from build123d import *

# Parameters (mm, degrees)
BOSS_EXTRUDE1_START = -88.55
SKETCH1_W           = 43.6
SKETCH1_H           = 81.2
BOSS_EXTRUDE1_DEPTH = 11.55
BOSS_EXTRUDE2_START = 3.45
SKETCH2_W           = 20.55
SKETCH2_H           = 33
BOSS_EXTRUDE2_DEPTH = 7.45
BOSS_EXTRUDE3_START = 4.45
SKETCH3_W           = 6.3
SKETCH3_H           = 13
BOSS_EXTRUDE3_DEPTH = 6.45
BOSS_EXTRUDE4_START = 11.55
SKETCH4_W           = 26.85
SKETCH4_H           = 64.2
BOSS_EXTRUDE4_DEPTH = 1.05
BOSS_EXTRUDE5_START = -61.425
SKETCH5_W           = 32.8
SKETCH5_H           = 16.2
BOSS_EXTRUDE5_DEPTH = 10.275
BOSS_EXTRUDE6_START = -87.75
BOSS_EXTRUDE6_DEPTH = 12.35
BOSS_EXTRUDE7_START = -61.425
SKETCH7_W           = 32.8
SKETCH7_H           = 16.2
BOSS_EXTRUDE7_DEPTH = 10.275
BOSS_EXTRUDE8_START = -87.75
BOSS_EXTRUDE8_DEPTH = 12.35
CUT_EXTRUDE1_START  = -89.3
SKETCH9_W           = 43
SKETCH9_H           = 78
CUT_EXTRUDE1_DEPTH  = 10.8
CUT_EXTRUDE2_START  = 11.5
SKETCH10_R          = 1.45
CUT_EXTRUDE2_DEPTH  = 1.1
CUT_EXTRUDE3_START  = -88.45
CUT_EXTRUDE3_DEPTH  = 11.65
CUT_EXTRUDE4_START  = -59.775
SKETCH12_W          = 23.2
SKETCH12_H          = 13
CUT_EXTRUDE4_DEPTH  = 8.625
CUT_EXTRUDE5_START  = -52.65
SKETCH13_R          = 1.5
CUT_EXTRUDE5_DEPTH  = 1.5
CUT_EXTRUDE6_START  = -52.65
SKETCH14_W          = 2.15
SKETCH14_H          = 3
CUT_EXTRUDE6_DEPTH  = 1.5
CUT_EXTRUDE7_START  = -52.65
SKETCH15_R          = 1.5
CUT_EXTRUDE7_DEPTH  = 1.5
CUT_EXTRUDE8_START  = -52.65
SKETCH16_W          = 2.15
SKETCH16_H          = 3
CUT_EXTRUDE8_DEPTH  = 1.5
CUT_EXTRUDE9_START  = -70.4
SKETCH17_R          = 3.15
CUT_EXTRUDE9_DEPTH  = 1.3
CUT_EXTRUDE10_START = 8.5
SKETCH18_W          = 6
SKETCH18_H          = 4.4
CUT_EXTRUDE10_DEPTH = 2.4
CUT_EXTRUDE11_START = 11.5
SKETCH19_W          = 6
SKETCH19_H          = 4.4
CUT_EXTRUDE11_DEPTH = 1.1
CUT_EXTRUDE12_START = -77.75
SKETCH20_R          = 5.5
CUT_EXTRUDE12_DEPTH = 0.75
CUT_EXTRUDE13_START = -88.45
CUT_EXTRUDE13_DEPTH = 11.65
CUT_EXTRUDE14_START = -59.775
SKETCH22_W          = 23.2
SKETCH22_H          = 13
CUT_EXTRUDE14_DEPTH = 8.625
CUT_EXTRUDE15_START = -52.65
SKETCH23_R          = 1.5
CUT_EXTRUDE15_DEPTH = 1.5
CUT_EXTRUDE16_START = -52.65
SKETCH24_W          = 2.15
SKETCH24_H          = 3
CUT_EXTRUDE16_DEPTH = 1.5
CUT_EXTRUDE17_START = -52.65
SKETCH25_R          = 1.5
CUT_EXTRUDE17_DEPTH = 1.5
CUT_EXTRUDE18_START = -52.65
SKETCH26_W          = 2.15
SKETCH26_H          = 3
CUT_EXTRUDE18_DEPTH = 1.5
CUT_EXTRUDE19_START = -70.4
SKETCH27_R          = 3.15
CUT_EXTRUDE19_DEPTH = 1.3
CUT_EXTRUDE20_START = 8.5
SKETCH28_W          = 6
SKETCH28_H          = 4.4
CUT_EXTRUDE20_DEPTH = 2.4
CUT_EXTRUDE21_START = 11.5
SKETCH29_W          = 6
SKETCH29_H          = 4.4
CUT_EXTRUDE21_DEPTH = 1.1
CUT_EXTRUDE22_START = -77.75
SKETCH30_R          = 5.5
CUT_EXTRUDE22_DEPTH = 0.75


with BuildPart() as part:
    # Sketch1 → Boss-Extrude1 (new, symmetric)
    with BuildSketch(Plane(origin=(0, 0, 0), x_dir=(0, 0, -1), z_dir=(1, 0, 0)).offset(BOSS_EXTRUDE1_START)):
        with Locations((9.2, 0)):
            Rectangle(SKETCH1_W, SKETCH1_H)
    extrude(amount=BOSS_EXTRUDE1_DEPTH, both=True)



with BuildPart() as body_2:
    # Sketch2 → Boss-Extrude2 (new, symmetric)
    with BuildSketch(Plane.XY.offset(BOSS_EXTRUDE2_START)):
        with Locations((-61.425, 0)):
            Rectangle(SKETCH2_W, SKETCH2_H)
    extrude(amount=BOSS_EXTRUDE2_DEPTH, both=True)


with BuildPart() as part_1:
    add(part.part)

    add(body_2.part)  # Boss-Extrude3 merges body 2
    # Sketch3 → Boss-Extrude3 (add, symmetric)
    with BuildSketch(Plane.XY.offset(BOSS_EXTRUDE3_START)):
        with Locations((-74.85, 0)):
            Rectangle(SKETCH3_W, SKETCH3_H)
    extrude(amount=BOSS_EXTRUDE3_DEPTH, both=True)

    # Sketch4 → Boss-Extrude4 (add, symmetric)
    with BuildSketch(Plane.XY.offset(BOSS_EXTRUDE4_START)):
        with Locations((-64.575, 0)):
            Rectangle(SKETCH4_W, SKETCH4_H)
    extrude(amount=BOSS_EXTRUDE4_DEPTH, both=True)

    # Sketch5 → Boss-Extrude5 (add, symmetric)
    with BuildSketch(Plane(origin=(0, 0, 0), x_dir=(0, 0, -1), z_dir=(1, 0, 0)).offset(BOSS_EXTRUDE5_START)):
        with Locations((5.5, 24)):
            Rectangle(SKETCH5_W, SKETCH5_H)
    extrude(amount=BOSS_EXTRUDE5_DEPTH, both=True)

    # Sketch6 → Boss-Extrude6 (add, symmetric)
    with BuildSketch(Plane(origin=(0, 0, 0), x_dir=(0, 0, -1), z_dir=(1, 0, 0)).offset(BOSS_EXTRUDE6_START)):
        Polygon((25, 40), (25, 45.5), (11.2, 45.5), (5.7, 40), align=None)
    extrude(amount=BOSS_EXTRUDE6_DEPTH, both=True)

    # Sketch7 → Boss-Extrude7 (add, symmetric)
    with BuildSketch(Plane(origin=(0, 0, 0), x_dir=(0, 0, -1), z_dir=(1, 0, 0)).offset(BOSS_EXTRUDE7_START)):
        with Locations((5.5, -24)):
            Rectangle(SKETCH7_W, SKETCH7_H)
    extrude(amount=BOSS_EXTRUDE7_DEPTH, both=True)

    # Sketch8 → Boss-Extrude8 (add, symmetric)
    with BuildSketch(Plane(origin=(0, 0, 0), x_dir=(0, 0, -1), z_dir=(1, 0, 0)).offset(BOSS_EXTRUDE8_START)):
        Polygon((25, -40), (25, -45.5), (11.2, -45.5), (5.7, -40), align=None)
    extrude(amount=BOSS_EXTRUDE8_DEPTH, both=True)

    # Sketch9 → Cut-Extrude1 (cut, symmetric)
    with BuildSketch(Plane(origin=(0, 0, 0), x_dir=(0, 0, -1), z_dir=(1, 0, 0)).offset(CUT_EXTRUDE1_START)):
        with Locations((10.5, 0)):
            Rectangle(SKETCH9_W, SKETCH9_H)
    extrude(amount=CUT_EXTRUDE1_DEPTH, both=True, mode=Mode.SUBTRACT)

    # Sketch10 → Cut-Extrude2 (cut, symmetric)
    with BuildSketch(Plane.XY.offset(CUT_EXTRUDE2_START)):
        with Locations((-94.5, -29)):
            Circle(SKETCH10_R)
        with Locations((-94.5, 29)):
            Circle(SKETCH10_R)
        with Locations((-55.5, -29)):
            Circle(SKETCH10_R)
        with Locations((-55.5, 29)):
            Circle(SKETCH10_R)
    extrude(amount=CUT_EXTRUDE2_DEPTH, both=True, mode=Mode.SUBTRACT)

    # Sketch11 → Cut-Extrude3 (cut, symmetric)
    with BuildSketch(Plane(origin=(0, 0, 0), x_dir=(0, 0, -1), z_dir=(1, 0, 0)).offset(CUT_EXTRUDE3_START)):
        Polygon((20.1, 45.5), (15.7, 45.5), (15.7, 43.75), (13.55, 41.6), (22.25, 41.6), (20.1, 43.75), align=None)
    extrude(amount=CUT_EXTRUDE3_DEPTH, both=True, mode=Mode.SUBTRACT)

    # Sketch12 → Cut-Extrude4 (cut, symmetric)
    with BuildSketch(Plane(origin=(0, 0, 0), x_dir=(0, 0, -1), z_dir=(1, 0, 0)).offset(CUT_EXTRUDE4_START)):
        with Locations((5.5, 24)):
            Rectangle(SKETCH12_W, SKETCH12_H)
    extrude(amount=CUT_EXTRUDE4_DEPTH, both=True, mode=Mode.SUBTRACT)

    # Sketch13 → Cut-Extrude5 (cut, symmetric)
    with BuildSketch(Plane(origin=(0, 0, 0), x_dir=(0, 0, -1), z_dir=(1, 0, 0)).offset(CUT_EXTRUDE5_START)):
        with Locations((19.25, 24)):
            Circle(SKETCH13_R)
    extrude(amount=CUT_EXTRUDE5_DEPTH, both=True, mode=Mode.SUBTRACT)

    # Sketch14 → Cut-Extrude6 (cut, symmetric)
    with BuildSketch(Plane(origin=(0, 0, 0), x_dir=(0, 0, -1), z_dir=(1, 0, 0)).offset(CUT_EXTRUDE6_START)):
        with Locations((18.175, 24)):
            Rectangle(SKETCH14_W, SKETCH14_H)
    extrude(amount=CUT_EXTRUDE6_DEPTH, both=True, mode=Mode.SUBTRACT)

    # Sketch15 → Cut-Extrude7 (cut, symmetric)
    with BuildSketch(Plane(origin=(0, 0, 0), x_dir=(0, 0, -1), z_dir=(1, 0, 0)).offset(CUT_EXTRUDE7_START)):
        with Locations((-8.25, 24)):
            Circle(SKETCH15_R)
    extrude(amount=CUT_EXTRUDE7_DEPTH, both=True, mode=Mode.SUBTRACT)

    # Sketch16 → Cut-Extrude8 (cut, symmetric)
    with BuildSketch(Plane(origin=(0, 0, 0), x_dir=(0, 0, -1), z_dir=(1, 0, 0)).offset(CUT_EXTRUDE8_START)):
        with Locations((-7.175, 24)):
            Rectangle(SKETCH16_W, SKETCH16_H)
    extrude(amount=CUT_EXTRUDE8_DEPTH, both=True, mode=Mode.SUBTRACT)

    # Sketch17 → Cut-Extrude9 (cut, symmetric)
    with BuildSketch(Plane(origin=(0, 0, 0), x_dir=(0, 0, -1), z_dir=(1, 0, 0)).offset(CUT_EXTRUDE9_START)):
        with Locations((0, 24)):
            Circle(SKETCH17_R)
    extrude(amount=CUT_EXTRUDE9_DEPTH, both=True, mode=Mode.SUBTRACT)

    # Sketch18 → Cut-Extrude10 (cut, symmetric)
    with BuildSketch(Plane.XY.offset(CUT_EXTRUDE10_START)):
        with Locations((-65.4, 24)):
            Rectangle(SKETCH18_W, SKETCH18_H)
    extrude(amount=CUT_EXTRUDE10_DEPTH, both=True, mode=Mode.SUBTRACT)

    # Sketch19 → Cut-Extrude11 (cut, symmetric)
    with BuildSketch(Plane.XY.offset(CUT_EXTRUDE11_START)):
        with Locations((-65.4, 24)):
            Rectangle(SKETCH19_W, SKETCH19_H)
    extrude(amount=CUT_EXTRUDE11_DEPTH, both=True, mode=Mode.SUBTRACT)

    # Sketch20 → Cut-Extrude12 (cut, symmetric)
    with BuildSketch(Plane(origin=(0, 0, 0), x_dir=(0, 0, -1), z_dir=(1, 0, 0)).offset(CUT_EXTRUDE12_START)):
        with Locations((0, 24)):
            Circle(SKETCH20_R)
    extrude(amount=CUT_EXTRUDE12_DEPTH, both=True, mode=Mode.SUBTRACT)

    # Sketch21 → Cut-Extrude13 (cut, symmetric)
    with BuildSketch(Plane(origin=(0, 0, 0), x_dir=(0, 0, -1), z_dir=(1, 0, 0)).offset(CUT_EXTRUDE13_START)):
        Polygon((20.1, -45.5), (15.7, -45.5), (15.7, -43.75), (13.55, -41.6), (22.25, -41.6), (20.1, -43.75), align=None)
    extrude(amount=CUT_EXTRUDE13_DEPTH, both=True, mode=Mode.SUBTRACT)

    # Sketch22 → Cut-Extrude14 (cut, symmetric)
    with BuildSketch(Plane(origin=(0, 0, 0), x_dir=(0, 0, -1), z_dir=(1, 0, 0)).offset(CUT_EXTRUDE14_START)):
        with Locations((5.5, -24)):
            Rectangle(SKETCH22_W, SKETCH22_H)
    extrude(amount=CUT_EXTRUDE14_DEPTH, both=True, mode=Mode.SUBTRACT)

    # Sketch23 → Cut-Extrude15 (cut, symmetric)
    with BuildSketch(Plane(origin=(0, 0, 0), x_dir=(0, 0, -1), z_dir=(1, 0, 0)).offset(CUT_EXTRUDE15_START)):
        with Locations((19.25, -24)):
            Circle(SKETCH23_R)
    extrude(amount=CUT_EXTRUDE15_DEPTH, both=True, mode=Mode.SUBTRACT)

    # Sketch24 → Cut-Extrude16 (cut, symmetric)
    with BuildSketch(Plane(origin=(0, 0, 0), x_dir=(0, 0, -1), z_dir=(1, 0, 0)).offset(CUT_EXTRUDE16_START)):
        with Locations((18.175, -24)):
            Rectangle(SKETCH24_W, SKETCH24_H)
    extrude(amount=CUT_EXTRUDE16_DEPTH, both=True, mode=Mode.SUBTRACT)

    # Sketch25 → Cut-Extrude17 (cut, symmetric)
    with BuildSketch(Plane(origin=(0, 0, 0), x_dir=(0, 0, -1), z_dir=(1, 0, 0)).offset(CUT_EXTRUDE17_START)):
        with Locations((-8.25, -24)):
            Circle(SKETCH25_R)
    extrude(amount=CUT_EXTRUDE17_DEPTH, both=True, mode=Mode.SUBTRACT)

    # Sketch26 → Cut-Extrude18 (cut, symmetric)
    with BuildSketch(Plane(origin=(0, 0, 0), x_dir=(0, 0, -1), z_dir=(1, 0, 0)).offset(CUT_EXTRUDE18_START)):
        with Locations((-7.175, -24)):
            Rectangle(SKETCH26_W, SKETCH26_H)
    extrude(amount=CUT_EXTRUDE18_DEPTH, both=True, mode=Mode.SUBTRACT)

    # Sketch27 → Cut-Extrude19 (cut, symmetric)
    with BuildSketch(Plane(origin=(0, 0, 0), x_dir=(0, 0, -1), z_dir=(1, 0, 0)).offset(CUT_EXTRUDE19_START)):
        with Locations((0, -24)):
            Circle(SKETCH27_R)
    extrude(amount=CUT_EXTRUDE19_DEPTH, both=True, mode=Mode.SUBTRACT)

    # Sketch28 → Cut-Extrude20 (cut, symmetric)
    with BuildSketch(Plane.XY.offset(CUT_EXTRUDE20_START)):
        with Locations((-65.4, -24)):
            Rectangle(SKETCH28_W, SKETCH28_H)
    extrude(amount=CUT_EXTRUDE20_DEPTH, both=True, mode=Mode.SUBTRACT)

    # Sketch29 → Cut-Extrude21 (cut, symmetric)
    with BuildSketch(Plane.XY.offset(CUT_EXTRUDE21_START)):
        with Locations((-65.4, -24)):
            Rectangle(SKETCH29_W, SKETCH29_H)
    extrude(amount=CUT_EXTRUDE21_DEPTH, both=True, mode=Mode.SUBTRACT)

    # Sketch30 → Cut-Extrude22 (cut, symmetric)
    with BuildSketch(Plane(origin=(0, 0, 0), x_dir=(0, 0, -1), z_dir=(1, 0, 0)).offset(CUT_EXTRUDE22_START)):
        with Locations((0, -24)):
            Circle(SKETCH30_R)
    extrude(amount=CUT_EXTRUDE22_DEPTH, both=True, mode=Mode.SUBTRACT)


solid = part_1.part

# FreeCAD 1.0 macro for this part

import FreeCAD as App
import Part
import Sketcher
from FreeCAD import Vector
Q = App.Units.Quantity

doc = App.newDocument("Part")
body = doc.addObject("PartDesign::Body", "Body")

sketch1 = body.newObject("Sketcher::SketchObject", "Sketch")
sketch1.AttachmentSupport = (doc.getObject("YZ_Plane"), [""])
sketch1.MapMode = "FlatFace"
sketch1.AttachmentOffset = App.Placement(Vector(0, 0, -88.55), App.Rotation())
sketch1.addGeometry(Part.LineSegment(Vector(41, 13, 0), Vector(-41, 13, 0)), False)
sketch1.addGeometry(Part.LineSegment(Vector(-41, 13, 0), Vector(-41, -31, 0)), False)
sketch1.addGeometry(Part.LineSegment(Vector(-41, -31, 0), Vector(41, -31, 0)), False)
sketch1.addGeometry(Part.LineSegment(Vector(41, -31, 0), Vector(41, 13, 0)), False)
sketch1.addConstraint(Sketcher.Constraint("Coincident", 0, 2, 1, 1))
sketch1.addConstraint(Sketcher.Constraint("Coincident", 1, 2, 2, 1))
sketch1.addConstraint(Sketcher.Constraint("Coincident", 2, 2, 3, 1))
sketch1.addConstraint(Sketcher.Constraint("Coincident", 3, 2, 0, 1))
sketch1.addConstraint(Sketcher.Constraint("Horizontal", 0))
sketch1.addConstraint(Sketcher.Constraint("Vertical", 1))
sketch1.addConstraint(Sketcher.Constraint("Horizontal", 2))
sketch1.addConstraint(Sketcher.Constraint("Vertical", 3))
sketch1.addConstraint(Sketcher.Constraint("DistanceX", 0, 2, 0, 1, Q("81.2 mm")))
sketch1.addConstraint(Sketcher.Constraint("DistanceY", 1, 2, 1, 1, Q("43.6 mm")))
sketch1.addConstraint(Sketcher.Constraint("DistanceY", 1, 2, -1, 1, Q("31 mm")))
sketch1.addConstraint(Sketcher.Constraint("DistanceX", 0, 2, -1, 1, Q("40.6 mm")))
pad1 = body.newObject("PartDesign::Pad", "Pad")
pad1.Profile = sketch1
pad1.Length = 23.1
pad1.Midplane = True
body2 = doc.addObject("PartDesign::Body", "Body001")

sketch2 = body2.newObject("Sketcher::SketchObject", "Sketch001")
sketch2.AttachmentSupport = (doc.getObject("XY_Plane001"), [""])
sketch2.MapMode = "FlatFace"
sketch2.AttachmentOffset = App.Placement(Vector(0, 0, 3.45), App.Rotation())
sketch2.addGeometry(Part.LineSegment(Vector(-72, 16, 0), Vector(-72, -16, 0)), False)
sketch2.addGeometry(Part.LineSegment(Vector(-72, -16, 0), Vector(-51, -16, 0)), False)
sketch2.addGeometry(Part.LineSegment(Vector(-51, -16, 0), Vector(-51, 16, 0)), False)
sketch2.addGeometry(Part.LineSegment(Vector(-51, 16, 0), Vector(-72, 16, 0)), False)
sketch2.addConstraint(Sketcher.Constraint("Coincident", 0, 2, 1, 1))
sketch2.addConstraint(Sketcher.Constraint("Coincident", 1, 2, 2, 1))
sketch2.addConstraint(Sketcher.Constraint("Coincident", 2, 2, 3, 1))
sketch2.addConstraint(Sketcher.Constraint("Coincident", 3, 2, 0, 1))
sketch2.addConstraint(Sketcher.Constraint("Vertical", 0))
sketch2.addConstraint(Sketcher.Constraint("Horizontal", 1))
sketch2.addConstraint(Sketcher.Constraint("Vertical", 2))
sketch2.addConstraint(Sketcher.Constraint("Horizontal", 3))
sketch2.addConstraint(Sketcher.Constraint("DistanceY", 0, 2, 0, 1, Q("33 mm")))
sketch2.addConstraint(Sketcher.Constraint("DistanceX", 1, 1, 1, 2, Q("20.55 mm")))
sketch2.addConstraint(Sketcher.Constraint("DistanceX", 0, 2, -1, 1, Q("71.7 mm")))
sketch2.addConstraint(Sketcher.Constraint("DistanceY", 0, 2, -1, 1, Q("16.5 mm")))
pad2 = body2.newObject("PartDesign::Pad", "Pad001")
pad2.Profile = sketch2
pad2.Length = 14.9
pad2.Midplane = True
body.AllowCompound = True
doc.recompute()

boolean = body.newObject("PartDesign::Boolean", "Boolean")
boolean.Type = "Fuse"
boolean.addObjects([body2])

sketch3 = body.newObject("Sketcher::SketchObject", "Sketch002")
sketch3.AttachmentSupport = (doc.getObject("XY_Plane"), [""])
sketch3.MapMode = "FlatFace"
sketch3.AttachmentOffset = App.Placement(Vector(0, 0, 4.45), App.Rotation())
sketch3.addGeometry(Part.LineSegment(Vector(-78, 6, 0), Vector(-78, -6, 0)), False)
sketch3.addGeometry(Part.LineSegment(Vector(-78, -6, 0), Vector(-72, -6, 0)), False)
sketch3.addGeometry(Part.LineSegment(Vector(-72, -6, 0), Vector(-72, 6, 0)), False)
sketch3.addGeometry(Part.LineSegment(Vector(-72, 6, 0), Vector(-78, 6, 0)), False)
sketch3.addConstraint(Sketcher.Constraint("Coincident", 0, 2, 1, 1))
sketch3.addConstraint(Sketcher.Constraint("Coincident", 1, 2, 2, 1))
sketch3.addConstraint(Sketcher.Constraint("Coincident", 2, 2, 3, 1))
sketch3.addConstraint(Sketcher.Constraint("Coincident", 3, 2, 0, 1))
sketch3.addConstraint(Sketcher.Constraint("Vertical", 0))
sketch3.addConstraint(Sketcher.Constraint("Horizontal", 1))
sketch3.addConstraint(Sketcher.Constraint("Vertical", 2))
sketch3.addConstraint(Sketcher.Constraint("Horizontal", 3))
sketch3.addConstraint(Sketcher.Constraint("DistanceY", 0, 2, 0, 1, Q("13 mm")))
sketch3.addConstraint(Sketcher.Constraint("DistanceX", 1, 1, 1, 2, Q("6.3 mm")))
sketch3.addConstraint(Sketcher.Constraint("DistanceX", 0, 2, -1, 1, Q("78 mm")))
sketch3.addConstraint(Sketcher.Constraint("DistanceY", 0, 2, -1, 1, Q("6.5 mm")))
pad3 = body.newObject("PartDesign::Pad", "Pad002")
pad3.Profile = sketch3
pad3.Length = 12.9
pad3.Midplane = True

sketch4 = body.newObject("Sketcher::SketchObject", "Sketch003")
sketch4.AttachmentSupport = (doc.getObject("XY_Plane"), [""])
sketch4.MapMode = "FlatFace"
sketch4.AttachmentOffset = App.Placement(Vector(0, 0, 11.55), App.Rotation())
sketch4.addGeometry(Part.LineSegment(Vector(-78, 32, 0), Vector(-78, -32, 0)), False)
sketch4.addGeometry(Part.LineSegment(Vector(-78, -32, 0), Vector(-51, -32, 0)), False)
sketch4.addGeometry(Part.LineSegment(Vector(-51, -32, 0), Vector(-51, 32, 0)), False)
sketch4.addGeometry(Part.LineSegment(Vector(-51, 32, 0), Vector(-78, 32, 0)), False)
sketch4.addConstraint(Sketcher.Constraint("Coincident", 0, 2, 1, 1))
sketch4.addConstraint(Sketcher.Constraint("Coincident", 1, 2, 2, 1))
sketch4.addConstraint(Sketcher.Constraint("Coincident", 2, 2, 3, 1))
sketch4.addConstraint(Sketcher.Constraint("Coincident", 3, 2, 0, 1))
sketch4.addConstraint(Sketcher.Constraint("Vertical", 0))
sketch4.addConstraint(Sketcher.Constraint("Horizontal", 1))
sketch4.addConstraint(Sketcher.Constraint("Vertical", 2))
sketch4.addConstraint(Sketcher.Constraint("Horizontal", 3))
sketch4.addConstraint(Sketcher.Constraint("DistanceY", 0, 2, 0, 1, Q("64.2 mm")))
sketch4.addConstraint(Sketcher.Constraint("DistanceX", 0, 2, -1, 1, Q("78 mm")))
sketch4.addConstraint(Sketcher.Constraint("DistanceX", 1, 1, 1, 2, Q("26.85 mm")))
sketch4.addConstraint(Sketcher.Constraint("DistanceY", 0, 2, -1, 1, Q("32.1 mm")))
pad4 = body.newObject("PartDesign::Pad", "Pad003")
pad4.Profile = sketch4
pad4.Length = 2.1
pad4.Midplane = True

sketch5 = body.newObject("Sketcher::SketchObject", "Sketch004")
sketch5.AttachmentSupport = (doc.getObject("YZ_Plane"), [""])
sketch5.MapMode = "FlatFace"
sketch5.AttachmentOffset = App.Placement(Vector(0, 0, -61.425), App.Rotation())
sketch5.addGeometry(Part.LineSegment(Vector(32, 11, 0), Vector(16, 11, 0)), False)
sketch5.addGeometry(Part.LineSegment(Vector(16, 11, 0), Vector(16, -22, 0)), False)
sketch5.addGeometry(Part.LineSegment(Vector(16, -22, 0), Vector(32, -22, 0)), False)
sketch5.addGeometry(Part.LineSegment(Vector(32, -22, 0), Vector(32, 11, 0)), False)
sketch5.addConstraint(Sketcher.Constraint("Coincident", 0, 2, 1, 1))
sketch5.addConstraint(Sketcher.Constraint("Coincident", 1, 2, 2, 1))
sketch5.addConstraint(Sketcher.Constraint("Coincident", 2, 2, 3, 1))
sketch5.addConstraint(Sketcher.Constraint("Coincident", 3, 2, 0, 1))
sketch5.addConstraint(Sketcher.Constraint("Horizontal", 0))
sketch5.addConstraint(Sketcher.Constraint("Vertical", 1))
sketch5.addConstraint(Sketcher.Constraint("Horizontal", 2))
sketch5.addConstraint(Sketcher.Constraint("Vertical", 3))
sketch5.addConstraint(Sketcher.Constraint("DistanceX", 0, 2, 0, 1, Q("16.2 mm")))
sketch5.addConstraint(Sketcher.Constraint("DistanceY", 1, 2, 1, 1, Q("32.8 mm")))
sketch5.addConstraint(Sketcher.Constraint("DistanceX", -1, 1, 0, 2, Q("15.9 mm")))
sketch5.addConstraint(Sketcher.Constraint("DistanceY", -1, 1, 0, 2, Q("10.9 mm")))
pad5 = body.newObject("PartDesign::Pad", "Pad004")
pad5.Profile = sketch5
pad5.Length = 20.55
pad5.Midplane = True

sketch6 = body.newObject("Sketcher::SketchObject", "Sketch005")
sketch6.AttachmentSupport = (doc.getObject("YZ_Plane"), [""])
sketch6.MapMode = "FlatFace"
sketch6.AttachmentOffset = App.Placement(Vector(0, 0, -87.75), App.Rotation())
sketch6.addGeometry(Part.LineSegment(Vector(40, -25, 0), Vector(46, -25, 0)), False)
sketch6.addGeometry(Part.LineSegment(Vector(46, -25, 0), Vector(46, -11, 0)), False)
sketch6.addGeometry(Part.LineSegment(Vector(46, -11, 0), Vector(40, -6, 0)), False)
sketch6.addGeometry(Part.LineSegment(Vector(40, -6, 0), Vector(40, -25, 0)), False)
sketch6.addConstraint(Sketcher.Constraint("Coincident", 0, 2, 1, 1))
sketch6.addConstraint(Sketcher.Constraint("Coincident", 1, 2, 2, 1))
sketch6.addConstraint(Sketcher.Constraint("Coincident", 2, 2, 3, 1))
sketch6.addConstraint(Sketcher.Constraint("Coincident", 3, 2, 0, 1))
sketch6.addConstraint(Sketcher.Constraint("Horizontal", 0))
sketch6.addConstraint(Sketcher.Constraint("Vertical", 1))
sketch6.addConstraint(Sketcher.Constraint("Vertical", 3))
sketch6.addConstraint(Sketcher.Constraint("Angle", 2, Q("135 deg")))
sketch6.addConstraint(Sketcher.Constraint("DistanceX", 0, 1, 0, 2, Q("5.5 mm")))
sketch6.addConstraint(Sketcher.Constraint("DistanceY", 1, 1, 1, 2, Q("13.8 mm")))
sketch6.addConstraint(Sketcher.Constraint("DistanceY", 0, 2, -1, 1, Q("25 mm")))
sketch6.addConstraint(Sketcher.Constraint("DistanceX", -1, 1, 2, 2, Q("40 mm")))
pad6 = body.newObject("PartDesign::Pad", "Pad005")
pad6.Profile = sketch6
pad6.Length = 24.7
pad6.Midplane = True

sketch7 = body.newObject("Sketcher::SketchObject", "Sketch006")
sketch7.AttachmentSupport = (doc.getObject("YZ_Plane"), [""])
sketch7.MapMode = "FlatFace"
sketch7.AttachmentOffset = App.Placement(Vector(0, 0, -61.425), App.Rotation())
sketch7.addGeometry(Part.LineSegment(Vector(-16, 11, 0), Vector(-32, 11, 0)), False)
sketch7.addGeometry(Part.LineSegment(Vector(-32, 11, 0), Vector(-32, -22, 0)), False)
sketch7.addGeometry(Part.LineSegment(Vector(-32, -22, 0), Vector(-16, -22, 0)), False)
sketch7.addGeometry(Part.LineSegment(Vector(-16, -22, 0), Vector(-16, 11, 0)), False)
sketch7.addConstraint(Sketcher.Constraint("Coincident", 0, 2, 1, 1))
sketch7.addConstraint(Sketcher.Constraint("Coincident", 1, 2, 2, 1))
sketch7.addConstraint(Sketcher.Constraint("Coincident", 2, 2, 3, 1))
sketch7.addConstraint(Sketcher.Constraint("Coincident", 3, 2, 0, 1))
sketch7.addConstraint(Sketcher.Constraint("Horizontal", 0))
sketch7.addConstraint(Sketcher.Constraint("Vertical", 1))
sketch7.addConstraint(Sketcher.Constraint("Horizontal", 2))
sketch7.addConstraint(Sketcher.Constraint("Vertical", 3))
sketch7.addConstraint(Sketcher.Constraint("DistanceX", 0, 2, 0, 1, Q("16.2 mm")))
sketch7.addConstraint(Sketcher.Constraint("DistanceY", 1, 2, 1, 1, Q("32.8 mm")))
sketch7.addConstraint(Sketcher.Constraint("DistanceX", 0, 2, -1, 1, Q("32.1 mm")))
sketch7.addConstraint(Sketcher.Constraint("DistanceY", -1, 1, 0, 2, Q("10.9 mm")))
pad7 = body.newObject("PartDesign::Pad", "Pad006")
pad7.Profile = sketch7
pad7.Length = 20.55
pad7.Midplane = True

sketch8 = body.newObject("Sketcher::SketchObject", "Sketch007")
sketch8.AttachmentSupport = (doc.getObject("YZ_Plane"), [""])
sketch8.MapMode = "FlatFace"
sketch8.AttachmentOffset = App.Placement(Vector(0, 0, -87.75), App.Rotation())
sketch8.addGeometry(Part.LineSegment(Vector(-46, -25, 0), Vector(-40, -25, 0)), False)
sketch8.addGeometry(Part.LineSegment(Vector(-40, -25, 0), Vector(-40, -6, 0)), False)
sketch8.addGeometry(Part.LineSegment(Vector(-40, -6, 0), Vector(-46, -11, 0)), False)
sketch8.addGeometry(Part.LineSegment(Vector(-46, -11, 0), Vector(-46, -25, 0)), False)
sketch8.addConstraint(Sketcher.Constraint("Coincident", 0, 2, 1, 1))
sketch8.addConstraint(Sketcher.Constraint("Coincident", 1, 2, 2, 1))
sketch8.addConstraint(Sketcher.Constraint("Coincident", 2, 2, 3, 1))
sketch8.addConstraint(Sketcher.Constraint("Coincident", 3, 2, 0, 1))
sketch8.addConstraint(Sketcher.Constraint("Horizontal", 0))
sketch8.addConstraint(Sketcher.Constraint("Vertical", 1))
sketch8.addConstraint(Sketcher.Constraint("Vertical", 3))
sketch8.addConstraint(Sketcher.Constraint("Angle", 2, Q("-135 deg")))
sketch8.addConstraint(Sketcher.Constraint("DistanceX", 0, 1, 0, 2, Q("5.5 mm")))
sketch8.addConstraint(Sketcher.Constraint("DistanceY", 1, 1, 1, 2, Q("19.3 mm")))
sketch8.addConstraint(Sketcher.Constraint("DistanceX", 0, 2, -1, 1, Q("40 mm")))
sketch8.addConstraint(Sketcher.Constraint("DistanceY", 0, 2, -1, 1, Q("25 mm")))
pad8 = body.newObject("PartDesign::Pad", "Pad007")
pad8.Profile = sketch8
pad8.Length = 24.7
pad8.Midplane = True

sketch9 = body.newObject("Sketcher::SketchObject", "Sketch008")
sketch9.AttachmentSupport = (doc.getObject("YZ_Plane"), [""])
sketch9.MapMode = "FlatFace"
sketch9.AttachmentOffset = App.Placement(Vector(0, 0, -89.3), App.Rotation())
sketch9.addGeometry(Part.LineSegment(Vector(39, 11, 0), Vector(-39, 11, 0)), False)
sketch9.addGeometry(Part.LineSegment(Vector(-39, 11, 0), Vector(-39, -32, 0)), False)
sketch9.addGeometry(Part.LineSegment(Vector(-39, -32, 0), Vector(39, -32, 0)), False)
sketch9.addGeometry(Part.LineSegment(Vector(39, -32, 0), Vector(39, 11, 0)), False)
sketch9.addConstraint(Sketcher.Constraint("Coincident", 0, 2, 1, 1))
sketch9.addConstraint(Sketcher.Constraint("Coincident", 1, 2, 2, 1))
sketch9.addConstraint(Sketcher.Constraint("Coincident", 2, 2, 3, 1))
sketch9.addConstraint(Sketcher.Constraint("Coincident", 3, 2, 0, 1))
sketch9.addConstraint(Sketcher.Constraint("Horizontal", 0))
sketch9.addConstraint(Sketcher.Constraint("Vertical", 1))
sketch9.addConstraint(Sketcher.Constraint("Horizontal", 2))
sketch9.addConstraint(Sketcher.Constraint("Vertical", 3))
sketch9.addConstraint(Sketcher.Constraint("DistanceX", 0, 2, 0, 1, Q("78 mm")))
sketch9.addConstraint(Sketcher.Constraint("DistanceY", 1, 2, 1, 1, Q("43 mm")))
sketch9.addConstraint(Sketcher.Constraint("DistanceX", 0, 2, -1, 1, Q("39 mm")))
sketch9.addConstraint(Sketcher.Constraint("DistanceY", -1, 1, 0, 2, Q("11 mm")))
pocket1 = body.newObject("PartDesign::Pocket", "Pocket")
pocket1.Profile = sketch9
pocket1.Length = 21.6
pocket1.Midplane = True

sketch10 = body.newObject("Sketcher::SketchObject", "Sketch009")
sketch10.AttachmentSupport = (doc.getObject("XY_Plane"), [""])
sketch10.MapMode = "FlatFace"
sketch10.AttachmentOffset = App.Placement(Vector(0, 0, 11.5), App.Rotation())
sketch10.addGeometry(Part.Circle(Vector(-94.5, -29, 0), Vector(0, 0, 1), 1.4), False)
sketch10.addGeometry(Part.Circle(Vector(-94.5, 29, 0), Vector(0, 0, 1), 1.4), False)
sketch10.addGeometry(Part.Circle(Vector(-55.5, -29, 0), Vector(0, 0, 1), 1.4), False)
sketch10.addGeometry(Part.Circle(Vector(-55.5, 29, 0), Vector(0, 0, 1), 1.4), False)
sketch10.addConstraint(Sketcher.Constraint("Equal", 0, 1))
sketch10.addConstraint(Sketcher.Constraint("Equal", 1, 2))
sketch10.addConstraint(Sketcher.Constraint("Equal", 2, 3))
sketch10.addConstraint(Sketcher.Constraint("Symmetric", 0, 3, 1, 3, -1))
sketch10.addConstraint(Sketcher.Constraint("Symmetric", 2, 3, 3, 3, -1))
sketch10.addConstraint(Sketcher.Constraint("Horizontal", 0, 3, 2, 3))
sketch10.addConstraint(Sketcher.Constraint("Diameter", 0, Q("2.9 mm")))
sketch10.addConstraint(Sketcher.Constraint("DistanceY", 0, 3, -1, 1, Q("29 mm")))
sketch10.addConstraint(Sketcher.Constraint("DistanceX", 0, 3, 2, 3, Q("39 mm")))
sketch10.addConstraint(Sketcher.Constraint("DistanceX", 0, 3, -1, 1, Q("94.5 mm")))
pocket2 = body.newObject("PartDesign::Pocket", "Pocket001")
pocket2.Profile = sketch10
pocket2.Length = 2.2
pocket2.Midplane = True

sketch11 = body.newObject("Sketcher::SketchObject", "Sketch010")
sketch11.AttachmentSupport = (doc.getObject("YZ_Plane"), [""])
sketch11.MapMode = "FlatFace"
sketch11.AttachmentOffset = App.Placement(Vector(0, 0, -88.45), App.Rotation())
sketch11.addGeometry(Part.LineSegment(Vector(45.5, -20.1, 0), Vector(45.5, -15.7, 0)), False)
sketch11.addGeometry(Part.LineSegment(Vector(45.5, -15.7, 0), Vector(43.8, -15.7, 0)), False)
sketch11.addGeometry(Part.LineSegment(Vector(43.8, -15.7, 0), Vector(41.6, -13.6, 0)), False)
sketch11.addGeometry(Part.LineSegment(Vector(41.6, -13.6, 0), Vector(41.6, -22.2, 0)), False)
sketch11.addGeometry(Part.LineSegment(Vector(41.6, -22.2, 0), Vector(43.8, -20.1, 0)), False)
sketch11.addGeometry(Part.LineSegment(Vector(43.8, -20.1, 0), Vector(45.5, -20.1, 0)), False)
sketch11.addConstraint(Sketcher.Constraint("Coincident", 0, 2, 1, 1))
sketch11.addConstraint(Sketcher.Constraint("Coincident", 1, 2, 2, 1))
sketch11.addConstraint(Sketcher.Constraint("Coincident", 2, 2, 3, 1))
sketch11.addConstraint(Sketcher.Constraint("Coincident", 3, 2, 4, 1))
sketch11.addConstraint(Sketcher.Constraint("Coincident", 4, 2, 5, 1))
sketch11.addConstraint(Sketcher.Constraint("Coincident", 5, 2, 0, 1))
sketch11.addConstraint(Sketcher.Constraint("Vertical", 0))
sketch11.addConstraint(Sketcher.Constraint("Horizontal", 1))
sketch11.addConstraint(Sketcher.Constraint("Vertical", 3))
sketch11.addConstraint(Sketcher.Constraint("Horizontal", 5))
sketch11.addConstraint(Sketcher.Constraint("Perpendicular", 2, 4))
sketch11.addConstraint(Sketcher.Constraint("Vertical", 1, 2, 4, 2))
sketch11.addConstraint(Sketcher.Constraint("Equal", 2, 4))
sketch11.addConstraint(Sketcher.Constraint("DistanceY", 0, 1, 0, 2, Q("4.4 mm")))
sketch11.addConstraint(Sketcher.Constraint("DistanceY", 3, 2, 3, 1, Q("8.7 mm")))
sketch11.addConstraint(Sketcher.Constraint("DistanceX", 1, 2, 1, 1, Q("1.75 mm")))
sketch11.addConstraint(Sketcher.Constraint("DistanceX", -1, 1, 0, 2, Q("45.5 mm")))
sketch11.addConstraint(Sketcher.Constraint("DistanceY", 0, 2, -1, 1, Q("15.7 mm")))
pocket3 = body.newObject("PartDesign::Pocket", "Pocket002")
pocket3.Profile = sketch11
pocket3.Length = 23.3
pocket3.Midplane = True

sketch12 = body.newObject("Sketcher::SketchObject", "Sketch011")
sketch12.AttachmentSupport = (doc.getObject("YZ_Plane"), [""])
sketch12.MapMode = "FlatFace"
sketch12.AttachmentOffset = App.Placement(Vector(0, 0, -59.775), App.Rotation())
sketch12.addGeometry(Part.LineSegment(Vector(30, 6, 0), Vector(18, 6, 0)), False)
sketch12.addGeometry(Part.LineSegment(Vector(18, 6, 0), Vector(18, -17, 0)), False)
sketch12.addGeometry(Part.LineSegment(Vector(18, -17, 0), Vector(30, -17, 0)), False)
sketch12.addGeometry(Part.LineSegment(Vector(30, -17, 0), Vector(30, 6, 0)), False)
sketch12.addConstraint(Sketcher.Constraint("Coincident", 0, 2, 1, 1))
sketch12.addConstraint(Sketcher.Constraint("Coincident", 1, 2, 2, 1))
sketch12.addConstraint(Sketcher.Constraint("Coincident", 2, 2, 3, 1))
sketch12.addConstraint(Sketcher.Constraint("Coincident", 3, 2, 0, 1))
sketch12.addConstraint(Sketcher.Constraint("Horizontal", 0))
sketch12.addConstraint(Sketcher.Constraint("Vertical", 1))
sketch12.addConstraint(Sketcher.Constraint("Horizontal", 2))
sketch12.addConstraint(Sketcher.Constraint("Vertical", 3))
sketch12.addConstraint(Sketcher.Constraint("DistanceX", 0, 2, 0, 1, Q("13 mm")))
sketch12.addConstraint(Sketcher.Constraint("DistanceY", 1, 2, 1, 1, Q("23.2 mm")))
sketch12.addConstraint(Sketcher.Constraint("DistanceX", -1, 1, 0, 2, Q("17.5 mm")))
sketch12.addConstraint(Sketcher.Constraint("DistanceY", -1, 1, 0, 2, Q("6.1 mm")))
pocket4 = body.newObject("PartDesign::Pocket", "Pocket003")
pocket4.Profile = sketch12
pocket4.Length = 17.25
pocket4.Midplane = True

sketch13 = body.newObject("Sketcher::SketchObject", "Sketch012")
sketch13.AttachmentSupport = (doc.getObject("YZ_Plane"), [""])
sketch13.MapMode = "FlatFace"
sketch13.AttachmentOffset = App.Placement(Vector(0, 0, -52.65), App.Rotation())
sketch13.addGeometry(Part.Circle(Vector(24, -19.2, 0), Vector(0, 0, 1), 1.5), False)
sketch13.addConstraint(Sketcher.Constraint("Diameter", 0, Q("3 mm")))
sketch13.addConstraint(Sketcher.Constraint("DistanceX", -1, 1, 0, 3, Q("24 mm")))
sketch13.addConstraint(Sketcher.Constraint("DistanceY", 0, 3, -1, 1, Q("19.25 mm")))
pocket5 = body.newObject("PartDesign::Pocket", "Pocket004")
pocket5.Profile = sketch13
pocket5.Length = 3
pocket5.Midplane = True

sketch14 = body.newObject("Sketcher::SketchObject", "Sketch013")
sketch14.AttachmentSupport = (doc.getObject("YZ_Plane"), [""])
sketch14.MapMode = "FlatFace"
sketch14.AttachmentOffset = App.Placement(Vector(0, 0, -52.65), App.Rotation())
sketch14.addGeometry(Part.LineSegment(Vector(25.5, -17.1, 0), Vector(22.5, -17.1, 0)), False)
sketch14.addGeometry(Part.LineSegment(Vector(22.5, -17.1, 0), Vector(22.5, -19.2, 0)), False)
sketch14.addGeometry(Part.LineSegment(Vector(22.5, -19.2, 0), Vector(25.5, -19.2, 0)), False)
sketch14.addGeometry(Part.LineSegment(Vector(25.5, -19.2, 0), Vector(25.5, -17.1, 0)), False)
sketch14.addConstraint(Sketcher.Constraint("Coincident", 0, 2, 1, 1))
sketch14.addConstraint(Sketcher.Constraint("Coincident", 1, 2, 2, 1))
sketch14.addConstraint(Sketcher.Constraint("Coincident", 2, 2, 3, 1))
sketch14.addConstraint(Sketcher.Constraint("Coincident", 3, 2, 0, 1))
sketch14.addConstraint(Sketcher.Constraint("Horizontal", 0))
sketch14.addConstraint(Sketcher.Constraint("Vertical", 1))
sketch14.addConstraint(Sketcher.Constraint("Horizontal", 2))
sketch14.addConstraint(Sketcher.Constraint("Vertical", 3))
sketch14.addConstraint(Sketcher.Constraint("DistanceX", 0, 2, 0, 1, Q("3 mm")))
sketch14.addConstraint(Sketcher.Constraint("DistanceY", 1, 2, 1, 1, Q("2.15 mm")))
sketch14.addConstraint(Sketcher.Constraint("DistanceX", -1, 1, 0, 2, Q("22.5 mm")))
sketch14.addConstraint(Sketcher.Constraint("DistanceY", 0, 2, -1, 1, Q("17.1 mm")))
pocket6 = body.newObject("PartDesign::Pocket", "Pocket005")
pocket6.Profile = sketch14
pocket6.Length = 3
pocket6.Midplane = True

sketch15 = body.newObject("Sketcher::SketchObject", "Sketch014")
sketch15.AttachmentSupport = (doc.getObject("YZ_Plane"), [""])
sketch15.MapMode = "FlatFace"
sketch15.AttachmentOffset = App.Placement(Vector(0, 0, -52.65), App.Rotation())
sketch15.addGeometry(Part.Circle(Vector(24, 8.2, 0), Vector(0, 0, 1), 1.5), False)
sketch15.addConstraint(Sketcher.Constraint("Diameter", 0, Q("3 mm")))
sketch15.addConstraint(Sketcher.Constraint("DistanceX", -1, 1, 0, 3, Q("24 mm")))
sketch15.addConstraint(Sketcher.Constraint("DistanceY", -1, 1, 0, 3, Q("8.25 mm")))
pocket7 = body.newObject("PartDesign::Pocket", "Pocket006")
pocket7.Profile = sketch15
pocket7.Length = 3
pocket7.Midplane = True

sketch16 = body.newObject("Sketcher::SketchObject", "Sketch015")
sketch16.AttachmentSupport = (doc.getObject("YZ_Plane"), [""])
sketch16.MapMode = "FlatFace"
sketch16.AttachmentOffset = App.Placement(Vector(0, 0, -52.65), App.Rotation())
sketch16.addGeometry(Part.LineSegment(Vector(25.5, 8.2, 0), Vector(22.5, 8.2, 0)), False)
sketch16.addGeometry(Part.LineSegment(Vector(22.5, 8.2, 0), Vector(22.5, 6.1, 0)), False)
sketch16.addGeometry(Part.LineSegment(Vector(22.5, 6.1, 0), Vector(25.5, 6.1, 0)), False)
sketch16.addGeometry(Part.LineSegment(Vector(25.5, 6.1, 0), Vector(25.5, 8.2, 0)), False)
sketch16.addConstraint(Sketcher.Constraint("Coincident", 0, 2, 1, 1))
sketch16.addConstraint(Sketcher.Constraint("Coincident", 1, 2, 2, 1))
sketch16.addConstraint(Sketcher.Constraint("Coincident", 2, 2, 3, 1))
sketch16.addConstraint(Sketcher.Constraint("Coincident", 3, 2, 0, 1))
sketch16.addConstraint(Sketcher.Constraint("Horizontal", 0))
sketch16.addConstraint(Sketcher.Constraint("Vertical", 1))
sketch16.addConstraint(Sketcher.Constraint("Horizontal", 2))
sketch16.addConstraint(Sketcher.Constraint("Vertical", 3))
sketch16.addConstraint(Sketcher.Constraint("DistanceX", 0, 2, 0, 1, Q("3 mm")))
sketch16.addConstraint(Sketcher.Constraint("DistanceY", 1, 2, 1, 1, Q("2.15 mm")))
sketch16.addConstraint(Sketcher.Constraint("DistanceX", -1, 1, 0, 2, Q("22.5 mm")))
sketch16.addConstraint(Sketcher.Constraint("DistanceY", -1, 1, 1, 2, Q("6.1 mm")))
pocket8 = body.newObject("PartDesign::Pocket", "Pocket007")
pocket8.Profile = sketch16
pocket8.Length = 3
pocket8.Midplane = True

sketch17 = body.newObject("Sketcher::SketchObject", "Sketch016")
sketch17.AttachmentSupport = (doc.getObject("YZ_Plane"), [""])
sketch17.MapMode = "FlatFace"
sketch17.AttachmentOffset = App.Placement(Vector(0, 0, -70.4), App.Rotation())
sketch17.addGeometry(Part.Circle(Vector(24, 0, 0), Vector(0, 0, 1), 3.1), False)
sketch17.addConstraint(Sketcher.Constraint("PointOnObject", 0, 3, -1))
sketch17.addConstraint(Sketcher.Constraint("Diameter", 0, Q("6.3 mm")))
sketch17.addConstraint(Sketcher.Constraint("DistanceX", -1, 1, 0, 3, Q("24 mm")))
pocket9 = body.newObject("PartDesign::Pocket", "Pocket008")
pocket9.Profile = sketch17
pocket9.Length = 2.6
pocket9.Midplane = True

sketch18 = body.newObject("Sketcher::SketchObject", "Sketch017")
sketch18.AttachmentSupport = (doc.getObject("XY_Plane"), [""])
sketch18.MapMode = "FlatFace"
sketch18.AttachmentOffset = App.Placement(Vector(0, 0, 8.5), App.Rotation())
sketch18.addGeometry(Part.LineSegment(Vector(-68.4, 26.2, 0), Vector(-68.4, 21.8, 0)), False)
sketch18.addGeometry(Part.LineSegment(Vector(-68.4, 21.8, 0), Vector(-62.4, 21.8, 0)), False)
sketch18.addGeometry(Part.LineSegment(Vector(-62.4, 21.8, 0), Vector(-62.4, 26.2, 0)), False)
sketch18.addGeometry(Part.LineSegment(Vector(-62.4, 26.2, 0), Vector(-68.4, 26.2, 0)), False)
sketch18.addConstraint(Sketcher.Constraint("Coincident", 0, 2, 1, 1))
sketch18.addConstraint(Sketcher.Constraint("Coincident", 1, 2, 2, 1))
sketch18.addConstraint(Sketcher.Constraint("Coincident", 2, 2, 3, 1))
sketch18.addConstraint(Sketcher.Constraint("Coincident", 3, 2, 0, 1))
sketch18.addConstraint(Sketcher.Constraint("Vertical", 0))
sketch18.addConstraint(Sketcher.Constraint("Horizontal", 1))
sketch18.addConstraint(Sketcher.Constraint("Vertical", 2))
sketch18.addConstraint(Sketcher.Constraint("Horizontal", 3))
sketch18.addConstraint(Sketcher.Constraint("DistanceX", 1, 1, 1, 2, Q("6 mm")))
sketch18.addConstraint(Sketcher.Constraint("DistanceY", 0, 2, 0, 1, Q("4.4 mm")))
sketch18.addConstraint(Sketcher.Constraint("DistanceX", 0, 2, -1, 1, Q("68.4 mm")))
sketch18.addConstraint(Sketcher.Constraint("DistanceY", -1, 1, 0, 2, Q("21.8 mm")))
pocket10 = body.newObject("PartDesign::Pocket", "Pocket009")
pocket10.Profile = sketch18
pocket10.Length = 4.8
pocket10.Midplane = True

sketch19 = body.newObject("Sketcher::SketchObject", "Sketch018")
sketch19.AttachmentSupport = (doc.getObject("XY_Plane"), [""])
sketch19.MapMode = "FlatFace"
sketch19.AttachmentOffset = App.Placement(Vector(0, 0, 11.5), App.Rotation())
sketch19.addGeometry(Part.LineSegment(Vector(-68.4, 26.2, 0), Vector(-68.4, 21.8, 0)), False)
sketch19.addGeometry(Part.LineSegment(Vector(-68.4, 21.8, 0), Vector(-62.4, 21.8, 0)), False)
sketch19.addGeometry(Part.LineSegment(Vector(-62.4, 21.8, 0), Vector(-62.4, 26.2, 0)), False)
sketch19.addGeometry(Part.LineSegment(Vector(-62.4, 26.2, 0), Vector(-68.4, 26.2, 0)), False)
sketch19.addConstraint(Sketcher.Constraint("Coincident", 0, 2, 1, 1))
sketch19.addConstraint(Sketcher.Constraint("Coincident", 1, 2, 2, 1))
sketch19.addConstraint(Sketcher.Constraint("Coincident", 2, 2, 3, 1))
sketch19.addConstraint(Sketcher.Constraint("Coincident", 3, 2, 0, 1))
sketch19.addConstraint(Sketcher.Constraint("Vertical", 0))
sketch19.addConstraint(Sketcher.Constraint("Horizontal", 1))
sketch19.addConstraint(Sketcher.Constraint("Vertical", 2))
sketch19.addConstraint(Sketcher.Constraint("Horizontal", 3))
sketch19.addConstraint(Sketcher.Constraint("DistanceX", 1, 1, 1, 2, Q("6 mm")))
sketch19.addConstraint(Sketcher.Constraint("DistanceY", 0, 2, 0, 1, Q("4.4 mm")))
sketch19.addConstraint(Sketcher.Constraint("DistanceX", 0, 2, -1, 1, Q("68.4 mm")))
sketch19.addConstraint(Sketcher.Constraint("DistanceY", -1, 1, 0, 2, Q("21.8 mm")))
pocket11 = body.newObject("PartDesign::Pocket", "Pocket010")
pocket11.Profile = sketch19
pocket11.Length = 2.2
pocket11.Midplane = True

sketch20 = body.newObject("Sketcher::SketchObject", "Sketch019")
sketch20.AttachmentSupport = (doc.getObject("YZ_Plane"), [""])
sketch20.MapMode = "FlatFace"
sketch20.AttachmentOffset = App.Placement(Vector(0, 0, -77.75), App.Rotation())
sketch20.addGeometry(Part.Circle(Vector(24, 0, 0), Vector(0, 0, 1), 6), False)
sketch20.addConstraint(Sketcher.Constraint("PointOnObject", 0, 3, -1))
sketch20.addConstraint(Sketcher.Constraint("Diameter", 0, Q("11 mm")))
sketch20.addConstraint(Sketcher.Constraint("DistanceX", -1, 1, 0, 3, Q("24 mm")))
pocket12 = body.newObject("PartDesign::Pocket", "Pocket011")
pocket12.Profile = sketch20
pocket12.Length = 1.5
pocket12.Midplane = True

sketch21 = body.newObject("Sketcher::SketchObject", "Sketch020")
sketch21.AttachmentSupport = (doc.getObject("YZ_Plane"), [""])
sketch21.MapMode = "FlatFace"
sketch21.AttachmentOffset = App.Placement(Vector(0, 0, -88.45), App.Rotation())
sketch21.addGeometry(Part.LineSegment(Vector(-45.5, -15.7, 0), Vector(-45.5, -20.1, 0)), False)
sketch21.addGeometry(Part.LineSegment(Vector(-45.5, -20.1, 0), Vector(-43.8, -20.1, 0)), False)
sketch21.addGeometry(Part.LineSegment(Vector(-43.8, -20.1, 0), Vector(-41.6, -22.2, 0)), False)
sketch21.addGeometry(Part.LineSegment(Vector(-41.6, -22.2, 0), Vector(-41.6, -13.6, 0)), False)
sketch21.addGeometry(Part.LineSegment(Vector(-41.6, -13.6, 0), Vector(-43.8, -15.7, 0)), False)
sketch21.addGeometry(Part.LineSegment(Vector(-43.8, -15.7, 0), Vector(-45.5, -15.7, 0)), False)
sketch21.addConstraint(Sketcher.Constraint("Coincident", 0, 2, 1, 1))
sketch21.addConstraint(Sketcher.Constraint("Coincident", 1, 2, 2, 1))
sketch21.addConstraint(Sketcher.Constraint("Coincident", 2, 2, 3, 1))
sketch21.addConstraint(Sketcher.Constraint("Coincident", 3, 2, 4, 1))
sketch21.addConstraint(Sketcher.Constraint("Coincident", 4, 2, 5, 1))
sketch21.addConstraint(Sketcher.Constraint("Coincident", 5, 2, 0, 1))
sketch21.addConstraint(Sketcher.Constraint("Vertical", 0))
sketch21.addConstraint(Sketcher.Constraint("Horizontal", 1))
sketch21.addConstraint(Sketcher.Constraint("Vertical", 3))
sketch21.addConstraint(Sketcher.Constraint("Horizontal", 5))
sketch21.addConstraint(Sketcher.Constraint("Perpendicular", 2, 4))
sketch21.addConstraint(Sketcher.Constraint("Vertical", 1, 2, 4, 2))
sketch21.addConstraint(Sketcher.Constraint("Equal", 2, 4))
sketch21.addConstraint(Sketcher.Constraint("DistanceY", 0, 2, 0, 1, Q("4.4 mm")))
sketch21.addConstraint(Sketcher.Constraint("DistanceY", 3, 1, 3, 2, Q("8.7 mm")))
sketch21.addConstraint(Sketcher.Constraint("DistanceX", 1, 1, 1, 2, Q("1.75 mm")))
sketch21.addConstraint(Sketcher.Constraint("DistanceX", 0, 2, -1, 1, Q("45.5 mm")))
sketch21.addConstraint(Sketcher.Constraint("DistanceY", 0, 2, -1, 1, Q("20.1 mm")))
pocket13 = body.newObject("PartDesign::Pocket", "Pocket012")
pocket13.Profile = sketch21
pocket13.Length = 23.3
pocket13.Midplane = True

sketch22 = body.newObject("Sketcher::SketchObject", "Sketch021")
sketch22.AttachmentSupport = (doc.getObject("YZ_Plane"), [""])
sketch22.MapMode = "FlatFace"
sketch22.AttachmentOffset = App.Placement(Vector(0, 0, -59.775), App.Rotation())
sketch22.addGeometry(Part.LineSegment(Vector(-18, 6, 0), Vector(-30, 6, 0)), False)
sketch22.addGeometry(Part.LineSegment(Vector(-30, 6, 0), Vector(-30, -17, 0)), False)
sketch22.addGeometry(Part.LineSegment(Vector(-30, -17, 0), Vector(-18, -17, 0)), False)
sketch22.addGeometry(Part.LineSegment(Vector(-18, -17, 0), Vector(-18, 6, 0)), False)
sketch22.addConstraint(Sketcher.Constraint("Coincident", 0, 2, 1, 1))
sketch22.addConstraint(Sketcher.Constraint("Coincident", 1, 2, 2, 1))
sketch22.addConstraint(Sketcher.Constraint("Coincident", 2, 2, 3, 1))
sketch22.addConstraint(Sketcher.Constraint("Coincident", 3, 2, 0, 1))
sketch22.addConstraint(Sketcher.Constraint("Horizontal", 0))
sketch22.addConstraint(Sketcher.Constraint("Vertical", 1))
sketch22.addConstraint(Sketcher.Constraint("Horizontal", 2))
sketch22.addConstraint(Sketcher.Constraint("Vertical", 3))
sketch22.addConstraint(Sketcher.Constraint("DistanceX", 0, 2, 0, 1, Q("13 mm")))
sketch22.addConstraint(Sketcher.Constraint("DistanceY", 1, 2, 1, 1, Q("23.2 mm")))
sketch22.addConstraint(Sketcher.Constraint("DistanceX", 0, 2, -1, 1, Q("30.5 mm")))
sketch22.addConstraint(Sketcher.Constraint("DistanceY", -1, 1, 0, 2, Q("6.1 mm")))
pocket14 = body.newObject("PartDesign::Pocket", "Pocket013")
pocket14.Profile = sketch22
pocket14.Length = 17.25
pocket14.Midplane = True

sketch23 = body.newObject("Sketcher::SketchObject", "Sketch022")
sketch23.AttachmentSupport = (doc.getObject("YZ_Plane"), [""])
sketch23.MapMode = "FlatFace"
sketch23.AttachmentOffset = App.Placement(Vector(0, 0, -52.65), App.Rotation())
sketch23.addGeometry(Part.Circle(Vector(-24, -19.2, 0), Vector(0, 0, 1), 1.5), False)
sketch23.addConstraint(Sketcher.Constraint("Diameter", 0, Q("3 mm")))
sketch23.addConstraint(Sketcher.Constraint("DistanceX", 0, 3, -1, 1, Q("24 mm")))
sketch23.addConstraint(Sketcher.Constraint("DistanceY", 0, 3, -1, 1, Q("19.25 mm")))
pocket15 = body.newObject("PartDesign::Pocket", "Pocket014")
pocket15.Profile = sketch23
pocket15.Length = 3
pocket15.Midplane = True

sketch24 = body.newObject("Sketcher::SketchObject", "Sketch023")
sketch24.AttachmentSupport = (doc.getObject("YZ_Plane"), [""])
sketch24.MapMode = "FlatFace"
sketch24.AttachmentOffset = App.Placement(Vector(0, 0, -52.65), App.Rotation())
sketch24.addGeometry(Part.LineSegment(Vector(-22.5, -17.1, 0), Vector(-25.5, -17.1, 0)), False)
sketch24.addGeometry(Part.LineSegment(Vector(-25.5, -17.1, 0), Vector(-25.5, -19.2, 0)), False)
sketch24.addGeometry(Part.LineSegment(Vector(-25.5, -19.2, 0), Vector(-22.5, -19.2, 0)), False)
sketch24.addGeometry(Part.LineSegment(Vector(-22.5, -19.2, 0), Vector(-22.5, -17.1, 0)), False)
sketch24.addConstraint(Sketcher.Constraint("Coincident", 0, 2, 1, 1))
sketch24.addConstraint(Sketcher.Constraint("Coincident", 1, 2, 2, 1))
sketch24.addConstraint(Sketcher.Constraint("Coincident", 2, 2, 3, 1))
sketch24.addConstraint(Sketcher.Constraint("Coincident", 3, 2, 0, 1))
sketch24.addConstraint(Sketcher.Constraint("Horizontal", 0))
sketch24.addConstraint(Sketcher.Constraint("Vertical", 1))
sketch24.addConstraint(Sketcher.Constraint("Horizontal", 2))
sketch24.addConstraint(Sketcher.Constraint("Vertical", 3))
sketch24.addConstraint(Sketcher.Constraint("DistanceX", 0, 2, 0, 1, Q("3 mm")))
sketch24.addConstraint(Sketcher.Constraint("DistanceY", 1, 2, 1, 1, Q("2.15 mm")))
sketch24.addConstraint(Sketcher.Constraint("DistanceX", 0, 2, -1, 1, Q("25.5 mm")))
sketch24.addConstraint(Sketcher.Constraint("DistanceY", 0, 2, -1, 1, Q("17.1 mm")))
pocket16 = body.newObject("PartDesign::Pocket", "Pocket015")
pocket16.Profile = sketch24
pocket16.Length = 3
pocket16.Midplane = True

sketch25 = body.newObject("Sketcher::SketchObject", "Sketch024")
sketch25.AttachmentSupport = (doc.getObject("YZ_Plane"), [""])
sketch25.MapMode = "FlatFace"
sketch25.AttachmentOffset = App.Placement(Vector(0, 0, -52.65), App.Rotation())
sketch25.addGeometry(Part.Circle(Vector(-24, 8.2, 0), Vector(0, 0, 1), 1.5), False)
sketch25.addConstraint(Sketcher.Constraint("Diameter", 0, Q("3 mm")))
sketch25.addConstraint(Sketcher.Constraint("DistanceX", 0, 3, -1, 1, Q("24 mm")))
sketch25.addConstraint(Sketcher.Constraint("DistanceY", -1, 1, 0, 3, Q("8.25 mm")))
pocket17 = body.newObject("PartDesign::Pocket", "Pocket016")
pocket17.Profile = sketch25
pocket17.Length = 3
pocket17.Midplane = True

sketch26 = body.newObject("Sketcher::SketchObject", "Sketch025")
sketch26.AttachmentSupport = (doc.getObject("YZ_Plane"), [""])
sketch26.MapMode = "FlatFace"
sketch26.AttachmentOffset = App.Placement(Vector(0, 0, -52.65), App.Rotation())
sketch26.addGeometry(Part.LineSegment(Vector(-22.5, 8.2, 0), Vector(-25.5, 8.2, 0)), False)
sketch26.addGeometry(Part.LineSegment(Vector(-25.5, 8.2, 0), Vector(-25.5, 6.1, 0)), False)
sketch26.addGeometry(Part.LineSegment(Vector(-25.5, 6.1, 0), Vector(-22.5, 6.1, 0)), False)
sketch26.addGeometry(Part.LineSegment(Vector(-22.5, 6.1, 0), Vector(-22.5, 8.2, 0)), False)
sketch26.addConstraint(Sketcher.Constraint("Coincident", 0, 2, 1, 1))
sketch26.addConstraint(Sketcher.Constraint("Coincident", 1, 2, 2, 1))
sketch26.addConstraint(Sketcher.Constraint("Coincident", 2, 2, 3, 1))
sketch26.addConstraint(Sketcher.Constraint("Coincident", 3, 2, 0, 1))
sketch26.addConstraint(Sketcher.Constraint("Horizontal", 0))
sketch26.addConstraint(Sketcher.Constraint("Vertical", 1))
sketch26.addConstraint(Sketcher.Constraint("Horizontal", 2))
sketch26.addConstraint(Sketcher.Constraint("Vertical", 3))
sketch26.addConstraint(Sketcher.Constraint("DistanceX", 0, 2, 0, 1, Q("3 mm")))
sketch26.addConstraint(Sketcher.Constraint("DistanceY", 1, 2, 1, 1, Q("2.15 mm")))
sketch26.addConstraint(Sketcher.Constraint("DistanceX", 0, 2, -1, 1, Q("25.5 mm")))
sketch26.addConstraint(Sketcher.Constraint("DistanceY", -1, 1, 1, 2, Q("6.1 mm")))
pocket18 = body.newObject("PartDesign::Pocket", "Pocket017")
pocket18.Profile = sketch26
pocket18.Length = 3
pocket18.Midplane = True

sketch27 = body.newObject("Sketcher::SketchObject", "Sketch026")
sketch27.AttachmentSupport = (doc.getObject("YZ_Plane"), [""])
sketch27.MapMode = "FlatFace"
sketch27.AttachmentOffset = App.Placement(Vector(0, 0, -70.4), App.Rotation())
sketch27.addGeometry(Part.Circle(Vector(-24, 0, 0), Vector(0, 0, 1), 3.1), False)
sketch27.addConstraint(Sketcher.Constraint("PointOnObject", 0, 3, -1))
sketch27.addConstraint(Sketcher.Constraint("Diameter", 0, Q("6.3 mm")))
sketch27.addConstraint(Sketcher.Constraint("DistanceX", 0, 3, -1, 1, Q("24 mm")))
pocket19 = body.newObject("PartDesign::Pocket", "Pocket018")
pocket19.Profile = sketch27
pocket19.Length = 2.6
pocket19.Midplane = True

sketch28 = body.newObject("Sketcher::SketchObject", "Sketch027")
sketch28.AttachmentSupport = (doc.getObject("XY_Plane"), [""])
sketch28.MapMode = "FlatFace"
sketch28.AttachmentOffset = App.Placement(Vector(0, 0, 8.5), App.Rotation())
sketch28.addGeometry(Part.LineSegment(Vector(-68.4, -21.8, 0), Vector(-68.4, -26.2, 0)), False)
sketch28.addGeometry(Part.LineSegment(Vector(-68.4, -26.2, 0), Vector(-62.4, -26.2, 0)), False)
sketch28.addGeometry(Part.LineSegment(Vector(-62.4, -26.2, 0), Vector(-62.4, -21.8, 0)), False)
sketch28.addGeometry(Part.LineSegment(Vector(-62.4, -21.8, 0), Vector(-68.4, -21.8, 0)), False)
sketch28.addConstraint(Sketcher.Constraint("Coincident", 0, 2, 1, 1))
sketch28.addConstraint(Sketcher.Constraint("Coincident", 1, 2, 2, 1))
sketch28.addConstraint(Sketcher.Constraint("Coincident", 2, 2, 3, 1))
sketch28.addConstraint(Sketcher.Constraint("Coincident", 3, 2, 0, 1))
sketch28.addConstraint(Sketcher.Constraint("Vertical", 0))
sketch28.addConstraint(Sketcher.Constraint("Horizontal", 1))
sketch28.addConstraint(Sketcher.Constraint("Vertical", 2))
sketch28.addConstraint(Sketcher.Constraint("Horizontal", 3))
sketch28.addConstraint(Sketcher.Constraint("DistanceX", 1, 1, 1, 2, Q("6 mm")))
sketch28.addConstraint(Sketcher.Constraint("DistanceY", 0, 2, 0, 1, Q("4.4 mm")))
sketch28.addConstraint(Sketcher.Constraint("DistanceX", 0, 2, -1, 1, Q("68.4 mm")))
sketch28.addConstraint(Sketcher.Constraint("DistanceY", 0, 2, -1, 1, Q("26.2 mm")))
pocket20 = body.newObject("PartDesign::Pocket", "Pocket019")
pocket20.Profile = sketch28
pocket20.Length = 4.8
pocket20.Midplane = True

sketch29 = body.newObject("Sketcher::SketchObject", "Sketch028")
sketch29.AttachmentSupport = (doc.getObject("XY_Plane"), [""])
sketch29.MapMode = "FlatFace"
sketch29.AttachmentOffset = App.Placement(Vector(0, 0, 11.5), App.Rotation())
sketch29.addGeometry(Part.LineSegment(Vector(-68.4, -21.8, 0), Vector(-68.4, -26.2, 0)), False)
sketch29.addGeometry(Part.LineSegment(Vector(-68.4, -26.2, 0), Vector(-62.4, -26.2, 0)), False)
sketch29.addGeometry(Part.LineSegment(Vector(-62.4, -26.2, 0), Vector(-62.4, -21.8, 0)), False)
sketch29.addGeometry(Part.LineSegment(Vector(-62.4, -21.8, 0), Vector(-68.4, -21.8, 0)), False)
sketch29.addConstraint(Sketcher.Constraint("Coincident", 0, 2, 1, 1))
sketch29.addConstraint(Sketcher.Constraint("Coincident", 1, 2, 2, 1))
sketch29.addConstraint(Sketcher.Constraint("Coincident", 2, 2, 3, 1))
sketch29.addConstraint(Sketcher.Constraint("Coincident", 3, 2, 0, 1))
sketch29.addConstraint(Sketcher.Constraint("Vertical", 0))
sketch29.addConstraint(Sketcher.Constraint("Horizontal", 1))
sketch29.addConstraint(Sketcher.Constraint("Vertical", 2))
sketch29.addConstraint(Sketcher.Constraint("Horizontal", 3))
sketch29.addConstraint(Sketcher.Constraint("DistanceX", 1, 1, 1, 2, Q("6 mm")))
sketch29.addConstraint(Sketcher.Constraint("DistanceY", 0, 2, 0, 1, Q("4.4 mm")))
sketch29.addConstraint(Sketcher.Constraint("DistanceX", 0, 2, -1, 1, Q("68.4 mm")))
sketch29.addConstraint(Sketcher.Constraint("DistanceY", 0, 2, -1, 1, Q("26.2 mm")))
pocket21 = body.newObject("PartDesign::Pocket", "Pocket020")
pocket21.Profile = sketch29
pocket21.Length = 2.2
pocket21.Midplane = True

sketch30 = body.newObject("Sketcher::SketchObject", "Sketch029")
sketch30.AttachmentSupport = (doc.getObject("YZ_Plane"), [""])
sketch30.MapMode = "FlatFace"
sketch30.AttachmentOffset = App.Placement(Vector(0, 0, -77.75), App.Rotation())
sketch30.addGeometry(Part.Circle(Vector(-24, 0, 0), Vector(0, 0, 1), 6), False)
sketch30.addConstraint(Sketcher.Constraint("PointOnObject", 0, 3, -1))
sketch30.addConstraint(Sketcher.Constraint("Diameter", 0, Q("11 mm")))
sketch30.addConstraint(Sketcher.Constraint("DistanceX", 0, 3, -1, 1, Q("24 mm")))
pocket22 = body.newObject("PartDesign::Pocket", "Pocket021")
pocket22.Profile = sketch30
pocket22.Length = 1.5
pocket22.Midplane = True

doc.recompute()
